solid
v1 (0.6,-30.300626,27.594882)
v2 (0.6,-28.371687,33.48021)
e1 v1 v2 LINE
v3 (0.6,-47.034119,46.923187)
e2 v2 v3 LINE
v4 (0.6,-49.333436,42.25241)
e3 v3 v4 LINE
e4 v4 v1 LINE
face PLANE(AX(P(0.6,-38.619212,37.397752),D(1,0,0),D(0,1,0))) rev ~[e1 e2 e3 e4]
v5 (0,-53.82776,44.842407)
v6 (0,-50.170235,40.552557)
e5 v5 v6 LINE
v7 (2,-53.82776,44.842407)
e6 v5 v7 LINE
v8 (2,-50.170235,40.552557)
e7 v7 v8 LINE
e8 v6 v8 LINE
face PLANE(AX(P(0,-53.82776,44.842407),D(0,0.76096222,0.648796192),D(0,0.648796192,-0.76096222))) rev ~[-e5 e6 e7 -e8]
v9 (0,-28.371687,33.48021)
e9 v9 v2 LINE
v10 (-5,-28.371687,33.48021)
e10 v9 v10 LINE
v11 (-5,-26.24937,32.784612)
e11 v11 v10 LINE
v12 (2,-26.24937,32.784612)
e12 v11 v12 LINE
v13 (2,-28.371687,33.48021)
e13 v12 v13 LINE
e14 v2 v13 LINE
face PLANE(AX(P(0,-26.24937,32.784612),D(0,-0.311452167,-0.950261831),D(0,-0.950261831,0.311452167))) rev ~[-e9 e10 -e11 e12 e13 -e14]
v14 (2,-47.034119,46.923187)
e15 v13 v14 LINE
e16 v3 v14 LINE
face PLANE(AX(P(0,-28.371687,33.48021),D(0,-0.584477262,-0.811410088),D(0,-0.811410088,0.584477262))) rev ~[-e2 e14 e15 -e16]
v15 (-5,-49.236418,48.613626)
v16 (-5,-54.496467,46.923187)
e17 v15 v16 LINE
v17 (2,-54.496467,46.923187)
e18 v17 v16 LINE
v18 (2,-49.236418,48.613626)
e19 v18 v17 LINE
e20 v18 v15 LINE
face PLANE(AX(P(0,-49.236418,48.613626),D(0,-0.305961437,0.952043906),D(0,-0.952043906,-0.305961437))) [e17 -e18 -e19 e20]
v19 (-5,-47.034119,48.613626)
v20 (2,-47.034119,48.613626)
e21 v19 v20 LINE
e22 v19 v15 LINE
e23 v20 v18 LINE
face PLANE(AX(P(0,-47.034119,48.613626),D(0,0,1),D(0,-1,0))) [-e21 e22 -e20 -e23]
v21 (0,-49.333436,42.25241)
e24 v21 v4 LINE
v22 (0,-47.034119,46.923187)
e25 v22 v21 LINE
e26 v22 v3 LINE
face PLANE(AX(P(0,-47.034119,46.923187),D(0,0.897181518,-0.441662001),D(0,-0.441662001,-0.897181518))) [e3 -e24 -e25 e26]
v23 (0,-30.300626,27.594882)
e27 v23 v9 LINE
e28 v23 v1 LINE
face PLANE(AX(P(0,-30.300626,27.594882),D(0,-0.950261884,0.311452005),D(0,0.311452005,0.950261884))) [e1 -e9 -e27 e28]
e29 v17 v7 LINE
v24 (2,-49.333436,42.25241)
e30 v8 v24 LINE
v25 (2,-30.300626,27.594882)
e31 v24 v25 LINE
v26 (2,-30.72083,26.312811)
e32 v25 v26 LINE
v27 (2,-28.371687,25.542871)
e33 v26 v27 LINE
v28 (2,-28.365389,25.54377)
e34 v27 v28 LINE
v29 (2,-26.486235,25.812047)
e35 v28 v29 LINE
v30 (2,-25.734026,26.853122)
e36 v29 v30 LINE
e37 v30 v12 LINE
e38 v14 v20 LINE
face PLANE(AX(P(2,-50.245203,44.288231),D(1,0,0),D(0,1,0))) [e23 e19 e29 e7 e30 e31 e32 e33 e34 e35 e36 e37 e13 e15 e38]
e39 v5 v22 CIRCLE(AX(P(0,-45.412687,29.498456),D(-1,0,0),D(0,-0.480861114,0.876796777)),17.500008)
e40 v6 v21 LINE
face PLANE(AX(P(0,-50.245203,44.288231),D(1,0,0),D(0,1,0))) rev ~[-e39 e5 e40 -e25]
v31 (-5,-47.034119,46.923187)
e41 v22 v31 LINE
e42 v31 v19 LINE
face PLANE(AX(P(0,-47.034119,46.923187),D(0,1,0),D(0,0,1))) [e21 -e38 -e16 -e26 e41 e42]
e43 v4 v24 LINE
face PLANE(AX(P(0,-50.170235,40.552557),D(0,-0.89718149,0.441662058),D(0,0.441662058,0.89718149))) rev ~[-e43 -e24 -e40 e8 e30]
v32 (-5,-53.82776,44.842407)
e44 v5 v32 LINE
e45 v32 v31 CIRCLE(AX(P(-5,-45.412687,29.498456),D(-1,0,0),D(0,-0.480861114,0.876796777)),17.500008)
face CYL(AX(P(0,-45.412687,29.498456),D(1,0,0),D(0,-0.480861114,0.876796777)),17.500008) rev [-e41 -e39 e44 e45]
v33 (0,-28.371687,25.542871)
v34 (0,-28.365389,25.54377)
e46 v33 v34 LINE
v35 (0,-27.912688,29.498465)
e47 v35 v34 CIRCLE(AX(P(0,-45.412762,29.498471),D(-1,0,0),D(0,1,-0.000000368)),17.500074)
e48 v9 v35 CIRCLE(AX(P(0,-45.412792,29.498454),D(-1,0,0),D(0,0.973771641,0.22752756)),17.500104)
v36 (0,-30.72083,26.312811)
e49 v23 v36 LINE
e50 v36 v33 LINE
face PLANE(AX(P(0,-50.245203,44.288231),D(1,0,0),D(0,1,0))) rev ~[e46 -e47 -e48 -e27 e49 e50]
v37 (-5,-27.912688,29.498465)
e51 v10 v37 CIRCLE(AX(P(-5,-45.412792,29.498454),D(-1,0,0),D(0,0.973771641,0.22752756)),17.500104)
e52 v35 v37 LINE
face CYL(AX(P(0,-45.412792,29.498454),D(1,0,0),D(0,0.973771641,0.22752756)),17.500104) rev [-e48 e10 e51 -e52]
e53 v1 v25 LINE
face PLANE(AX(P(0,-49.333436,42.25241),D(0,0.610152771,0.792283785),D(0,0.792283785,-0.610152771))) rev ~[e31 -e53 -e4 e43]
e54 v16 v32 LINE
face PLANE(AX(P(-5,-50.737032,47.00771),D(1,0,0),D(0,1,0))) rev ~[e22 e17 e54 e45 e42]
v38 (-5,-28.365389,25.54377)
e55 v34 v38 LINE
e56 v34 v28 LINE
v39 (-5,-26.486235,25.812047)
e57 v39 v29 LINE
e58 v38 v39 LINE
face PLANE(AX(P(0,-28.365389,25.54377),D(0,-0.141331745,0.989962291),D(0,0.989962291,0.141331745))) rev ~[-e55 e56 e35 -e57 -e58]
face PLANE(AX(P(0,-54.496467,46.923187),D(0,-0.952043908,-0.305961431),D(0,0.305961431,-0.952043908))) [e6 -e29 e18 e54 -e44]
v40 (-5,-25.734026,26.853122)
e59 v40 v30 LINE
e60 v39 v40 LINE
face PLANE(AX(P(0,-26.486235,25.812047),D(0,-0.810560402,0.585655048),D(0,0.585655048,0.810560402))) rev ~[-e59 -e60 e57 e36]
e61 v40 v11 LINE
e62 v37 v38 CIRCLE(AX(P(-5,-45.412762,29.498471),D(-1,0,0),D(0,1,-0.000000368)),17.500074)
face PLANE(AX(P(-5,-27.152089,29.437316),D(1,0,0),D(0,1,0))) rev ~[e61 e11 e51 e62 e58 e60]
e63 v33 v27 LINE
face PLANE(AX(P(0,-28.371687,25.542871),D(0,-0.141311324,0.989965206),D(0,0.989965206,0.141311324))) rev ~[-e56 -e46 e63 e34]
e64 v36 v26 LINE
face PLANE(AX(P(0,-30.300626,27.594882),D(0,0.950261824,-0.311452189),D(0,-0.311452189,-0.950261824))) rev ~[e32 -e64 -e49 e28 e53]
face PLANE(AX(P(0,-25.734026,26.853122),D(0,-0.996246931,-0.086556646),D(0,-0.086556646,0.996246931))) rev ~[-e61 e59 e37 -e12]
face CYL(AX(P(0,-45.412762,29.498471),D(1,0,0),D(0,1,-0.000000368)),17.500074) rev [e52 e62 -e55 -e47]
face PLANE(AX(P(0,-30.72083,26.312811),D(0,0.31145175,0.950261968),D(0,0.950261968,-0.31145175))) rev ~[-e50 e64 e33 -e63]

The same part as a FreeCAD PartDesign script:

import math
import FreeCAD as App
import Part
import Sketcher

V = App.Vector


def add_polygon(sketch, points):
    """Adds a closed chain of lines whose ends are joined by coincident constraints."""
    first, n = sketch.GeometryCount, len(points)
    for a, b in zip(points, points[1:] + points[:1]):
        sketch.addGeometry(Part.LineSegment(App.Vector(*a, 0), App.Vector(*b, 0)), False)
    for i in range(n):
        sketch.addConstraint(Sketcher.Constraint("Coincident", first + i, 2, first + (i + 1) % n, 1))

doc = App.newDocument("Part")
params = doc.addObject("Spreadsheet::Sheet", "Params")
for row, (alias, value) in enumerate([
    ("sketch1_length", "23 mm"),
    ("pad1_length", "2 mm"),
    ("sketch2_length", "23 mm"),
    ("pocket1_length", "0.6 mm"),
    ("pad2_length", "5 mm"),
], start=1):
    params.set(f"A{row}", alias)
    params.set(f"B{row}", "=" + value)
    params.setAlias(f"B{row}", alias)

body = doc.addObject("PartDesign::Body", "Body")

# Sketch on YZ plane
sketch1 = body.newObject("Sketcher::SketchObject", "Sketch")
sketch1.AttachmentSupport = (doc.getObject("YZ_Plane"), [""])
sketch1.MapMode = "FlatFace"
add_polygon(sketch1, [(-53.82776, 44.842407), (-50.170235, 40.552557), (-49.333436, 42.25241), (-30.300626, 27.594882), (-30.72083, 26.312811), (-28.371687, 25.542871), (-28.365389, 25.54377), (-26.486235, 25.812047), (-25.734026, 26.853122), (-26.24937, 32.784612), (-28.371687, 33.48021), (-47.034119, 46.923187), (-47.034119, 48.613626), (-49.236418, 48.613626), (-54.496467, 46.923187)])  # lines 0-14
sketch1.addConstraint(Sketcher.Constraint("Vertical", 11))
sketch1.addConstraint(Sketcher.Constraint("Horizontal", 12))
sketch1.addConstraint(Sketcher.Constraint("Perpendicular", 3, 4))
sketch1.addConstraint(Sketcher.Constraint("Parallel", 4, 9))
sketch1.addConstraint(Sketcher.Constraint("Perpendicular", 13, 14))
sketch1.addConstraint(Sketcher.Constraint("Horizontal", 10, 2, 13, 2))
sketch1.addConstraint(Sketcher.Constraint("Vertical", 4, 2, 9, 2))
sketch1.addConstraint(Sketcher.Constraint("Distance", 10, 23.0))
sketch1.addConstraint(Sketcher.Constraint("DistanceX", 12, 2, 12, 1, 2.202299))
sketch1.addConstraint(Sketcher.Constraint("DistanceX", 0, 2, 6, 2, 23.684))
sketch1.addConstraint(Sketcher.Constraint("Distance", 4, 2.4721))
sketch1.addConstraint(Sketcher.Constraint("DistanceY", 11, 1, 11, 2, 1.690439))
sketch1.addConstraint(Sketcher.Constraint("DistanceX", 0, 2, 1, 2, 0.836799))
sketch1.addConstraint(Sketcher.Constraint("DistanceY", 3, 2, 1, 2, 15.939599))
sketch1.addConstraint(Sketcher.Constraint("DistanceX", 4, 2, 5, 2, 0.006298))
sketch1.addConstraint(Sketcher.Constraint("DistanceY", 4, 2, 5, 2, 0.000899))
sketch1.addConstraint(Sketcher.Constraint("DistanceX", 2, 2, 7, 2, 4.5666))
sketch1.addConstraint(Sketcher.Constraint("DistanceY", 3, 2, 9, 2, 7.167399))
sketch1.addConstraint(Sketcher.Constraint("Distance", 1, 1.894659))
sketch1.addConstraint(Sketcher.Constraint("Distance", 2, 24.022718))
sketch1.addConstraint(Sketcher.Constraint("Distance", 7, 1.284389))
sketch1.addConstraint(Sketcher.Constraint("DistanceY", -1, 1, 1, 2, 42.25241))
sketch1.addConstraint(Sketcher.Constraint("DistanceY", -1, 1, 2, 2, 27.594882))
sketch1.addConstraint(Sketcher.Constraint("DistanceX", 3, 2, -1, 1, 30.72083))
sketch1.addConstraint(Sketcher.Constraint("DistanceY", -1, 1, 4, 2, 25.542871))
sketch1.addConstraint(Sketcher.Constraint("DistanceY", -1, 1, 7, 2, 26.853122))
sketch1.addConstraint(Sketcher.Constraint("DistanceX", 8, 2, -1, 1, 26.24937))
sketch1.addConstraint(Sketcher.Constraint("DistanceX", 10, 2, -1, 1, 47.034119))
sketch1.addConstraint(Sketcher.Constraint("DistanceX", 14, 2, -1, 1, 53.82776))
sketch1.addConstraint(Sketcher.Constraint("DistanceX", 13, 2, 12, 2, 5.260049))
sketch1.setExpression("Constraints[22]", "Params.sketch1_length")
pad1 = body.newObject("PartDesign::Pad", "Pad")
pad1.Profile = sketch1
pad1.setExpression("Length", "Params.pad1_length")

# Sketch on YZ plane
sketch2 = body.newObject("Sketcher::SketchObject", "Sketch001")
sketch2.AttachmentSupport = (doc.getObject("YZ_Plane"), [""])
sketch2.MapMode = "FlatFace"
add_polygon(sketch2, [(-30.300626, 27.594882), (-28.371687, 33.48021), (-47.034119, 46.923187), (-49.333436, 42.25241)])  # lines 0-3
sketch2.addConstraint(Sketcher.Constraint("Distance", 1, 23.0))
sketch2.addConstraint(Sketcher.Constraint("DistanceY", 0, 2, 2, 2, 8.7722))
sketch2.addConstraint(Sketcher.Constraint("Distance", 3, 24.022718))
sketch2.addConstraint(Sketcher.Constraint("DistanceY", -1, 1, 0, 2, 33.48021))
sketch2.addConstraint(Sketcher.Constraint("DistanceX", 1, 2, -1, 1, 47.034119))
sketch2.addConstraint(Sketcher.Constraint("DistanceY", -1, 1, 3, 2, 27.594882))
sketch2.addConstraint(Sketcher.Constraint("DistanceX", 1, 2, 0, 2, 18.662432))
sketch2.addConstraint(Sketcher.Constraint("DistanceX", 2, 2, 0, 2, 20.961749))
sketch2.setExpression("Constraints[4]", "Params.sketch2_length")
pocket1 = body.newObject("PartDesign::Pocket", "Pocket")
pocket1.Profile = sketch2
pocket1.setExpression("Length", "Params.pocket1_length")
pocket1.Reversed = True

# Sketch on YZ plane
sketch3 = body.newObject("Sketcher::SketchObject", "Sketch002")
sketch3.AttachmentSupport = (doc.getObject("YZ_Plane"), [""])
sketch3.MapMode = "FlatFace"
sketch3.addGeometry(Part.ArcOfCircle(Part.Circle(V(-45.412687, 29.498456, 0), V(0, 0, 1), 17.500008), math.radians(95.316264), math.radians(118.741658)), False)
sketch3.addGeometry(Part.LineSegment(V(-47.034119, 46.923187, 0), V(-47.034119, 48.613626, 0)), False)
sketch3.addGeometry(Part.LineSegment(V(-47.034119, 48.613626, 0), V(-49.236418, 48.613626, 0)), False)
sketch3.addGeometry(Part.LineSegment(V(-49.236418, 48.613626, 0), V(-54.496467, 46.923187, 0)), False)
sketch3.addGeometry(Part.LineSegment(V(-54.496467, 46.923187, 0), V(-53.82776, 44.842407, 0)), False)
sketch3.addGeometry(Part.ArcOfCircle(Part.Circle(V(-45.412792, 29.498454, 0), V(0, 0, 1), 17.500104), math.radians(0.000036), math.radians(13.151552)), False)
sketch3.addGeometry(Part.ArcOfCircle(Part.Circle(V(-45.412762, 29.498471, 0), V(0, 0, 1), 17.500074), math.radians(-13.060629), math.radians(-0.000021)), False)
sketch3.addGeometry(Part.LineSegment(V(-28.365389, 25.54377, 0), V(-26.486235, 25.812047, 0)), False)
sketch3.addGeometry(Part.LineSegment(V(-26.486235, 25.812047, 0), V(-25.734026, 26.853122, 0)), False)
sketch3.addGeometry(Part.LineSegment(V(-25.734026, 26.853122, 0), V(-26.24937, 32.784612, 0)), False)
sketch3.addGeometry(Part.LineSegment(V(-26.24937, 32.784612, 0), V(-28.371687, 33.48021, 0)), False)
sketch3.addConstraint(Sketcher.Constraint("Coincident", 0, 1, 1, 1))
sketch3.addConstraint(Sketcher.Constraint("Coincident", 1, 2, 2, 1))
sketch3.addConstraint(Sketcher.Constraint("Coincident", 2, 2, 3, 1))
sketch3.addConstraint(Sketcher.Constraint("Coincident", 3, 2, 4, 1))
sketch3.addConstraint(Sketcher.Constraint("Coincident", 4, 2, 0, 2))
sketch3.addConstraint(Sketcher.Constraint("Coincident", 5, 1, 6, 2))
sketch3.addConstraint(Sketcher.Constraint("Coincident", 6, 1, 7, 1))
sketch3.addConstraint(Sketcher.Constraint("Coincident", 7, 2, 8, 1))
sketch3.addConstraint(Sketcher.Constraint("Coincident", 8, 2, 9, 1))
sketch3.addConstraint(Sketcher.Constraint("Coincident", 9, 2, 10, 1))
sketch3.addConstraint(Sketcher.Constraint("Coincident", 10, 2, 5, 2))
sketch3.addConstraint(Sketcher.Constraint("Vertical", 1))
sketch3.addConstraint(Sketcher.Constraint("Horizontal", 2))
sketch3.addConstraint(Sketcher.Constraint("DistanceX", 0, 3, 5, 1, 17.499999))
sketch3.addConstraint(Sketcher.Constraint("Radius", 0, 17.500008))
sketch3.addConstraint(Sketcher.Constraint("DistanceX", 2, 2, 2, 1, 2.202299))
sketch3.addConstraint(Sketcher.Constraint("Radius", 5, 17.500104))
sketch3.addConstraint(Sketcher.Constraint("Radius", 6, 17.500074))
sketch3.addConstraint(Sketcher.Constraint("DistanceX", 4, 2, 6, 3, 8.414998))
sketch3.addConstraint(Sketcher.Constraint("DistanceX", 10, 2, 5, 1, 0.458999))
sketch3.addConstraint(Sketcher.Constraint("DistanceY", 1, 1, 1, 2, 1.690439))
sketch3.addConstraint(Sketcher.Constraint("DistanceX", 6, 1, 5, 1, 0.452701))
sketch3.addConstraint(Sketcher.Constraint("Distance", 8, 1.284389))
sketch3.addConstraint(Sketcher.Constraint("DistanceX", 5, 3, -1, 1, 45.412792))
sketch3.addConstraint(Sketcher.Constraint("DistanceY", -1, 1, 6, 3, 29.498471))
sketch3.addConstraint(Sketcher.Constraint("DistanceX", 0, 1, -1, 1, 47.034119))
sketch3.addConstraint(Sketcher.Constraint("DistanceY", -1, 1, 8, 2, 26.853122))
sketch3.addConstraint(Sketcher.Constraint("DistanceX", 9, 2, -1, 1, 26.24937))
sketch3.addConstraint(Sketcher.Constraint("DistanceY", -1, 1, 10, 2, 33.48021))
sketch3.addConstraint(Sketcher.Constraint("DistanceY", 5, 3, 1, 2, 19.115172))
sketch3.addConstraint(Sketcher.Constraint("DistanceX", 3, 2, 2, 2, 5.260049))
sketch3.addConstraint(Sketcher.Constraint("DistanceY", 3, 2, 2, 2, 1.690439))
sketch3.addConstraint(Sketcher.Constraint("DistanceY", 5, 1, 1, 2, 19.115161))
sketch3.addConstraint(Sketcher.Constraint("DistanceX", 0, 3, 7, 2, 18.926452))
sketch3.addConstraint(Sketcher.Constraint("DistanceY", 7, 2, 0, 3, 3.686409))
sketch3.addConstraint(Sketcher.Constraint("DistanceY", 8, 2, 9, 2, 5.93149))
pad2 = body.newObject("PartDesign::Pad", "Pad001")
pad2.Profile = sketch3
pad2.setExpression("Length", "Params.pad2_length")
pad2.Reversed = True

doc.recompute()
